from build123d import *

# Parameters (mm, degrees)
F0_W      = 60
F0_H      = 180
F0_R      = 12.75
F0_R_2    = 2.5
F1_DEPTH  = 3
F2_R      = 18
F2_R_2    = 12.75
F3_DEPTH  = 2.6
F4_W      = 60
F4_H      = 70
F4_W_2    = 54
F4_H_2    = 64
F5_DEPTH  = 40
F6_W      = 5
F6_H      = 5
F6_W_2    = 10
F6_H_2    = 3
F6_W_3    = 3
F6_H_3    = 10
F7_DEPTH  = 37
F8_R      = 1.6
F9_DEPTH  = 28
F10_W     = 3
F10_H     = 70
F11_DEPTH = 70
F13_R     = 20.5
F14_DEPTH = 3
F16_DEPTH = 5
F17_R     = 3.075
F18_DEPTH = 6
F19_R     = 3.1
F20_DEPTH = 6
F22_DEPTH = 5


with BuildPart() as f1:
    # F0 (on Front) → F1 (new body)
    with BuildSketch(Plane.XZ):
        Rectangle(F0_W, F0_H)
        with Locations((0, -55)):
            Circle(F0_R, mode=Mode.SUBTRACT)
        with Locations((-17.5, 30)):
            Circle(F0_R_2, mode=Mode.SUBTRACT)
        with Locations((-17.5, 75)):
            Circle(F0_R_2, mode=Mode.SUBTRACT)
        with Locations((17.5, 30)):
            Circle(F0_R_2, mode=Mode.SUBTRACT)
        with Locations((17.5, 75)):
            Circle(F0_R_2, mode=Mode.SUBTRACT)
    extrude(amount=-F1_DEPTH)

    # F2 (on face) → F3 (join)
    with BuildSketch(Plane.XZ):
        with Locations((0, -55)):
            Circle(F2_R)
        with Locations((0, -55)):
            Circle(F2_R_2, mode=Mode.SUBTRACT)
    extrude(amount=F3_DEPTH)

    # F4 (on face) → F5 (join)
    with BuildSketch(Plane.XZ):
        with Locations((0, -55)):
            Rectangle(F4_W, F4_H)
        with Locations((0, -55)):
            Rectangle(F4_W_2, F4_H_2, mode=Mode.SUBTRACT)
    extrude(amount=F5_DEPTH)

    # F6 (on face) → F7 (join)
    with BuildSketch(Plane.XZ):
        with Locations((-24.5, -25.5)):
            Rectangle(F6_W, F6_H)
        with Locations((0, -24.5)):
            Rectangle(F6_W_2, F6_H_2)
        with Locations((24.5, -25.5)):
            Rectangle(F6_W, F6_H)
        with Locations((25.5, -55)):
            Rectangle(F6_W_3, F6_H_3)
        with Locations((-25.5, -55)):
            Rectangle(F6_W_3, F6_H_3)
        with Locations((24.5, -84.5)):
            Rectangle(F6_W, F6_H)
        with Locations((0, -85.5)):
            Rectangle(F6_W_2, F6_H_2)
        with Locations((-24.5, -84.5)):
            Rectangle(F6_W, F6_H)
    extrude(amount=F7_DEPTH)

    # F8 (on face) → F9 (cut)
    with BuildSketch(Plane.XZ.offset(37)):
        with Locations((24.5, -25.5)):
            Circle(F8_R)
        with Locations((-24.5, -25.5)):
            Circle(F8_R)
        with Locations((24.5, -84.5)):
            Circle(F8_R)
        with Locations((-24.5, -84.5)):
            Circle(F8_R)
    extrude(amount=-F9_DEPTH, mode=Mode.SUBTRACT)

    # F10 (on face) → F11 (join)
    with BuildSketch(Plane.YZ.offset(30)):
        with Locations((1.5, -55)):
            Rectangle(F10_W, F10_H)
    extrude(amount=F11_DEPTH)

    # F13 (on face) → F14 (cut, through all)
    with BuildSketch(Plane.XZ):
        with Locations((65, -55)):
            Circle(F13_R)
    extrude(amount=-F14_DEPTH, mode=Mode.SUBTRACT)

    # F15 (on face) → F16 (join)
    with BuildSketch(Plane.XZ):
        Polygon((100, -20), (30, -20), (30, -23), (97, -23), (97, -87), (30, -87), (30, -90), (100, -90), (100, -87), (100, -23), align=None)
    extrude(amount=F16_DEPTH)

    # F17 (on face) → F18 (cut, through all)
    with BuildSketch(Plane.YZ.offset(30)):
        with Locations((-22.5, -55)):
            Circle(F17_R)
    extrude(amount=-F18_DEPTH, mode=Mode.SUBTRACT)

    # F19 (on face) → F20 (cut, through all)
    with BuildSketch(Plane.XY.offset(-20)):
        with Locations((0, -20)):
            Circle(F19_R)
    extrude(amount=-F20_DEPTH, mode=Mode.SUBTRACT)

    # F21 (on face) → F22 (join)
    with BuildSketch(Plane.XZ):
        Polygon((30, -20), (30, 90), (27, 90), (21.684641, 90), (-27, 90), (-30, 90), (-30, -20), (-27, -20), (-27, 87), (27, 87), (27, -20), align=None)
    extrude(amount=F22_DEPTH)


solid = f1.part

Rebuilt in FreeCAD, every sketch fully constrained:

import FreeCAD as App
import Part
import Sketcher
from FreeCAD import Vector
Q = App.Units.Quantity

doc = App.newDocument("Part")
body = doc.addObject("PartDesign::Body", "Body")

sketch1 = body.newObject("Sketcher::SketchObject", "Sketch")
sketch1.AttachmentSupport = (doc.getObject("XZ_Plane"), [""])
sketch1.MapMode = "FlatFace"
sketch1.addGeometry([
    Part.LineSegment(Vector(-30, 90, 0), Vector(-30, -90, 0)),
    Part.LineSegment(Vector(-30, -90, 0), Vector(30, -90, 0)),
    Part.LineSegment(Vector(30, -90, 0), Vector(30, 90, 0)),
    Part.LineSegment(Vector(30, 90, 0), Vector(-30, 90, 0)),
    Part.Circle(Vector(0, -55, 0), Vector(0, 0, 1), 12.8),
    Part.Circle(Vector(-17.5, 30, 0), Vector(0, 0, 1), 2.5),
    Part.Circle(Vector(-17.5, 75, 0), Vector(0, 0, 1), 2.5),
    Part.Circle(Vector(17.5, 30, 0), Vector(0, 0, 1), 2.5),
    Part.Circle(Vector(17.5, 75, 0), Vector(0, 0, 1), 2.5),
], False)
sketch1.addConstraint([
    Sketcher.Constraint("Coincident", 0, 2, 1, 1),
    Sketcher.Constraint("Coincident", 1, 2, 2, 1),
    Sketcher.Constraint("Coincident", 2, 2, 3, 1),
    Sketcher.Constraint("Coincident", 3, 2, 0, 1),
    Sketcher.Constraint("Vertical", 0),
    Sketcher.Constraint("Horizontal", 1),
    Sketcher.Constraint("Vertical", 2),
    Sketcher.Constraint("Horizontal", 3),
    Sketcher.Constraint("Equal", 5, 6),
    Sketcher.Constraint("Equal", 6, 7),
    Sketcher.Constraint("Equal", 7, 8),
    Sketcher.Constraint("Symmetric", 0, 2, 2, 2, -1, 1),
    Sketcher.Constraint("Symmetric", 5, 3, 7, 3, -2),
    Sketcher.Constraint("Symmetric", 6, 3, 8, 3, -2),
    Sketcher.Constraint("PointOnObject", 4, 3, -2),
    Sketcher.Constraint("Vertical", 5, 3, 6, 3),
    Sketcher.Constraint("Diameter", 5, Q("5 mm")),
    Sketcher.Constraint("Diameter", 4, Q("25.5 mm")),
    Sketcher.Constraint("DistanceX", 1, 1, 1, 2, Q("60 mm")),
    Sketcher.Constraint("DistanceY", 0, 2, 0, 1, Q("180 mm")),
    Sketcher.Constraint("DistanceY", 4, 3, -1, 1, Q("55 mm")),
    Sketcher.Constraint("DistanceY", -1, 1, 5, 3, Q("30 mm")),
    Sketcher.Constraint("DistanceY", -1, 1, 6, 3, Q("75 mm")),
    Sketcher.Constraint("DistanceX", 5, 3, 7, 3, Q("35 mm")),
])
pad1 = body.newObject("PartDesign::Pad", "Pad")
pad1.Profile = sketch1
pad1.Length = 3
pad1.Reversed = True

sketch2 = body.newObject("Sketcher::SketchObject", "Sketch001")
sketch2.AttachmentSupport = (doc.getObject("XZ_Plane"), [""])
sketch2.MapMode = "FlatFace"
sketch2.addGeometry([
    Part.Circle(Vector(0, -55, 0), Vector(0, 0, 1), 18),
    Part.Circle(Vector(0, -55, 0), Vector(0, 0, 1), 13),
], False)
sketch2.addConstraint([
    Sketcher.Constraint("Coincident", 1, 3, 0, 3),
    Sketcher.Constraint("PointOnObject", 0, 3, -2),
    Sketcher.Constraint("Diameter", 0, Q("36 mm")),
    Sketcher.Constraint("Diameter", 1, Q("25.5 mm")),
    Sketcher.Constraint("DistanceY", 0, 3, -1, 1, Q("55 mm")),
])
pad2 = body.newObject("PartDesign::Pad", "Pad001")
pad2.Profile = sketch2
pad2.Length = 2.6

sketch3 = body.newObject("Sketcher::SketchObject", "Sketch002")
sketch3.AttachmentSupport = (doc.getObject("XZ_Plane"), [""])
sketch3.MapMode = "FlatFace"
sketch3.addGeometry([
    Part.LineSegment(Vector(-30, -20, 0), Vector(-30, -90, 0)),
    Part.LineSegment(Vector(-30, -90, 0), Vector(30, -90, 0)),
    Part.LineSegment(Vector(30, -90, 0), Vector(30, -20, 0)),
    Part.LineSegment(Vector(30, -20, 0), Vector(-30, -20, 0)),
    Part.LineSegment(Vector(27, -87, 0), Vector(-27, -87, 0)),
    Part.LineSegment(Vector(-27, -87, 0), Vector(-27, -23, 0)),
    Part.LineSegment(Vector(-27, -23, 0), Vector(27, -23, 0)),
    Part.LineSegment(Vector(27, -23, 0), Vector(27, -87, 0)),
], False)
sketch3.addConstraint([
    Sketcher.Constraint("Coincident", 0, 2, 1, 1),
    Sketcher.Constraint("Coincident", 1, 2, 2, 1),
    Sketcher.Constraint("Coincident", 2, 2, 3, 1),
    Sketcher.Constraint("Coincident", 3, 2, 0, 1),
    Sketcher.Constraint("Coincident", 4, 2, 5, 1),
    Sketcher.Constraint("Coincident", 5, 2, 6, 1),
    Sketcher.Constraint("Coincident", 6, 2, 7, 1),
    Sketcher.Constraint("Coincident", 7, 2, 4, 1),
    Sketcher.Constraint("Vertical", 0),
    Sketcher.Constraint("Horizontal", 1),
    Sketcher.Constraint("Vertical", 2),
    Sketcher.Constraint("Horizontal", 3),
    Sketcher.Constraint("Horizontal", 4),
    Sketcher.Constraint("Vertical", 5),
    Sketcher.Constraint("Horizontal", 6),
    Sketcher.Constraint("Vertical", 7),
    Sketcher.Constraint("DistanceX", 1, 1, 1, 2, Q("60 mm")),
    Sketcher.Constraint("DistanceX", 4, 2, 4, 1, Q("54 mm")),
    Sketcher.Constraint("DistanceY", 0, 2, 0, 1, Q("70 mm")),
    Sketcher.Constraint("DistanceY", 5, 1, 5, 2, Q("64 mm")),
    Sketcher.Constraint("DistanceX", 0, 2, -1, 1, Q("30 mm")),
    Sketcher.Constraint("DistanceY", 0, 2, -1, 1, Q("90 mm")),
    Sketcher.Constraint("DistanceX", 4, 2, -1, 1, Q("27 mm")),
    Sketcher.Constraint("DistanceY", 4, 2, -1, 1, Q("87 mm")),
])
pad3 = body.newObject("PartDesign::Pad", "Pad002")
pad3.Profile = sketch3
pad3.Length = 40

sketch4 = body.newObject("Sketcher::SketchObject", "Sketch003")
sketch4.AttachmentSupport = (doc.getObject("XZ_Plane"), [""])
sketch4.MapMode = "FlatFace"
sketch4.addGeometry([
    Part.LineSegment(Vector(-27, -23, 0), Vector(-27, -28, 0)),
    Part.LineSegment(Vector(-27, -28, 0), Vector(-22, -28, 0)),
    Part.LineSegment(Vector(-22, -28, 0), Vector(-22, -23, 0)),
    Part.LineSegment(Vector(-22, -23, 0), Vector(-27, -23, 0)),
    Part.LineSegment(Vector(-5, -23, 0), Vector(-5, -26, 0)),
    Part.LineSegment(Vector(-5, -26, 0), Vector(5, -26, 0)),
    Part.LineSegment(Vector(5, -26, 0), Vector(5, -23, 0)),
    Part.LineSegment(Vector(5, -23, 0), Vector(-5, -23, 0)),
    Part.LineSegment(Vector(22, -23, 0), Vector(22, -28, 0)),
    Part.LineSegment(Vector(22, -28, 0), Vector(27, -28, 0)),
    Part.LineSegment(Vector(27, -28, 0), Vector(27, -23, 0)),
    Part.LineSegment(Vector(27, -23, 0), Vector(22, -23, 0)),
    Part.LineSegment(Vector(24, -50, 0), Vector(24, -60, 0)),
    Part.LineSegment(Vector(24, -60, 0), Vector(27, -60, 0)),
    Part.LineSegment(Vector(27, -60, 0), Vector(27, -50, 0)),
    Part.LineSegment(Vector(27, -50, 0), Vector(24, -50, 0)),
    Part.LineSegment(Vector(-27, -50, 0), Vector(-27, -60, 0)),
    Part.LineSegment(Vector(-27, -60, 0), Vector(-24, -60, 0)),
    Part.LineSegment(Vector(-24, -60, 0), Vector(-24, -50, 0)),
    Part.LineSegment(Vector(-24, -50, 0), Vector(-27, -50, 0)),
    Part.LineSegment(Vector(22, -82, 0), Vector(22, -87, 0)),
    Part.LineSegment(Vector(22, -87, 0), Vector(27, -87, 0)),
    Part.LineSegment(Vector(27, -87, 0), Vector(27, -82, 0)),
    Part.LineSegment(Vector(27, -82, 0), Vector(22, -82, 0)),
    Part.LineSegment(Vector(-5, -84, 0), Vector(-5, -87, 0)),
    Part.LineSegment(Vector(-5, -87, 0), Vector(5, -87, 0)),
    Part.LineSegment(Vector(5, -87, 0), Vector(5, -84, 0)),
    Part.LineSegment(Vector(5, -84, 0), Vector(-5, -84, 0)),
    Part.LineSegment(Vector(-27, -82, 0), Vector(-27, -87, 0)),
    Part.LineSegment(Vector(-27, -87, 0), Vector(-22, -87, 0)),
    Part.LineSegment(Vector(-22, -87, 0), Vector(-22, -82, 0)),
    Part.LineSegment(Vector(-22, -82, 0), Vector(-27, -82, 0)),
], False)
sketch4.addConstraint([
    Sketcher.Constraint("Coincident", 0, 2, 1, 1),
    Sketcher.Constraint("Coincident", 1, 2, 2, 1),
    Sketcher.Constraint("Coincident", 2, 2, 3, 1),
    Sketcher.Constraint("Coincident", 3, 2, 0, 1),
    Sketcher.Constraint("Coincident", 4, 2, 5, 1),
    Sketcher.Constraint("Coincident", 5, 2, 6, 1),
    Sketcher.Constraint("Coincident", 6, 2, 7, 1),
    Sketcher.Constraint("Coincident", 7, 2, 4, 1),
    Sketcher.Constraint("Coincident", 8, 2, 9, 1),
    Sketcher.Constraint("Coincident", 9, 2, 10, 1),
    Sketcher.Constraint("Coincident", 10, 2, 11, 1),
    Sketcher.Constraint("Coincident", 11, 2, 8, 1),
    Sketcher.Constraint("Coincident", 12, 2, 13, 1),
    Sketcher.Constraint("Coincident", 13, 2, 14, 1),
    Sketcher.Constraint("Coincident", 14, 2, 15, 1),
    Sketcher.Constraint("Coincident", 15, 2, 12, 1),
    Sketcher.Constraint("Coincident", 16, 2, 17, 1),
    Sketcher.Constraint("Coincident", 17, 2, 18, 1),
    Sketcher.Constraint("Coincident", 18, 2, 19, 1),
    Sketcher.Constraint("Coincident", 19, 2, 16, 1),
    Sketcher.Constraint("Coincident", 20, 2, 21, 1),
    Sketcher.Constraint("Coincident", 21, 2, 22, 1),
    Sketcher.Constraint("Coincident", 22, 2, 23, 1),
    Sketcher.Constraint("Coincident", 23, 2, 20, 1),
    Sketcher.Constraint("Coincident", 24, 2, 25, 1),
    Sketcher.Constraint("Coincident", 25, 2, 26, 1),
    Sketcher.Constraint("Coincident", 26, 2, 27, 1),
    Sketcher.Constraint("Coincident", 27, 2, 24, 1),
    Sketcher.Constraint("Coincident", 28, 2, 29, 1),
    Sketcher.Constraint("Coincident", 29, 2, 30, 1),
    Sketcher.Constraint("Coincident", 30, 2, 31, 1),
    Sketcher.Constraint("Coincident", 31, 2, 28, 1),
    Sketcher.Constraint("Vertical", 0),
    Sketcher.Constraint("Horizontal", 1),
    Sketcher.Constraint("Vertical", 2),
    Sketcher.Constraint("Horizontal", 3),
    Sketcher.Constraint("Vertical", 4),
    Sketcher.Constraint("Horizontal", 5),
    Sketcher.Constraint("Vertical", 6),
    Sketcher.Constraint("Horizontal", 7),
    Sketcher.Constraint("Vertical", 8),
    Sketcher.Constraint("Horizontal", 9),
    Sketcher.Constraint("Vertical", 10),
    Sketcher.Constraint("Horizontal", 11),
    Sketcher.Constraint("Vertical", 12),
    Sketcher.Constraint("Horizontal", 13),
    Sketcher.Constraint("Vertical", 14),
    Sketcher.Constraint("Horizontal", 15),
    Sketcher.Constraint("Vertical", 16),
    Sketcher.Constraint("Horizontal", 17),
    Sketcher.Constraint("Vertical", 18),
    Sketcher.Constraint("Horizontal", 19),
    Sketcher.Constraint("Vertical", 20),
    Sketcher.Constraint("Horizontal", 21),
    Sketcher.Constraint("Vertical", 22),
    Sketcher.Constraint("Horizontal", 23),
    Sketcher.Constraint("Vertical", 24),
    Sketcher.Constraint("Horizontal", 25),
    Sketcher.Constraint("Vertical", 26),
    Sketcher.Constraint("Horizontal", 27),
    Sketcher.Constraint("Vertical", 28),
    Sketcher.Constraint("Horizontal", 29),
    Sketcher.Constraint("Vertical", 30),
    Sketcher.Constraint("Horizontal", 31),
    Sketcher.Constraint("Symmetric", 1, 2, 8, 2, -2),
    Sketcher.Constraint("Symmetric", 3, 2, 10, 2, -2),
    Sketcher.Constraint("Symmetric", 13, 2, 16, 2, -2),
    Sketcher.Constraint("Symmetric", 15, 2, 18, 2, -2),
    Sketcher.Constraint("Symmetric", 21, 2, 28, 2, -2),
    Sketcher.Constraint("Symmetric", 23, 2, 30, 2, -2),
    Sketcher.Constraint("Horizontal", 3, 2, 6, 2),
    Sketcher.Constraint("Horizontal", 21, 2, 24, 2),
    Sketcher.Constraint("Vertical", 10, 2, 13, 2),
    Sketcher.Constraint("Vertical", 11, 2, 20, 2),
    Sketcher.Constraint("Vertical", 14, 2, 21, 2),
    Sketcher.Constraint("Vertical", 7, 2, 24, 2),
    Sketcher.Constraint("Vertical", 6, 2, 25, 2),
    Sketcher.Constraint("Equal", 31, 0),
    Sketcher.Constraint("Equal", 19, 4),
    Sketcher.Constraint("Equal", 27, 12),
    Sketcher.Constraint("Equal", 10, 20),
    Sketcher.Constraint("Equal", 6, 24),
    Sketcher.Constraint("DistanceX", 1, 1, 1, 2, Q("5 mm")),
    Sketcher.Constraint("DistanceX", 5, 1, 5, 2, Q("10 mm")),
    Sketcher.Constraint("DistanceX", 13, 1, 13, 2, Q("3 mm")),
    Sketcher.Constraint("DistanceX", 0, 2, -1, 1, Q("27 mm")),
    Sketcher.Constraint("DistanceY", 0, 2, -1, 1, Q("28 mm")),
    Sketcher.Constraint("DistanceX", 4, 2, -1, 1, Q("5 mm")),
    Sketcher.Constraint("DistanceY", 12, 2, -1, 1, Q("60 mm")),
    Sketcher.Constraint("DistanceY", 20, 2, -1, 1, Q("87 mm")),
])
pad4 = body.newObject("PartDesign::Pad", "Pad003")
pad4.Profile = sketch4
pad4.Length = 37

sketch5 = body.newObject("Sketcher::SketchObject", "Sketch004")
sketch5.AttachmentSupport = (doc.getObject("XZ_Plane"), [""])
sketch5.MapMode = "FlatFace"
sketch5.AttachmentOffset = App.Placement(Vector(0, 0, 37), App.Rotation())
sketch5.addGeometry([
    Part.Circle(Vector(24.5, -25.5, 0), Vector(0, 0, 1), 1.6),
    Part.Circle(Vector(-24.5, -25.5, 0), Vector(0, 0, 1), 1.6),
    Part.Circle(Vector(24.5, -84.5, 0), Vector(0, 0, 1), 1.6),
    Part.Circle(Vector(-24.5, -84.5, 0), Vector(0, 0, 1), 1.6),
], False)
sketch5.addConstraint([
    Sketcher.Constraint("Equal", 0, 1),
    Sketcher.Constraint("Equal", 1, 2),
    Sketcher.Constraint("Equal", 2, 3),
    Sketcher.Constraint("Symmetric", 0, 3, 1, 3, -2),
    Sketcher.Constraint("Symmetric", 2, 3, 3, 3, -2),
    Sketcher.Constraint("Vertical", 0, 3, 2, 3),
    Sketcher.Constraint("Diameter", 0, Q("3.2 mm")),
    Sketcher.Constraint("DistanceX", 1, 3, 0, 3, Q("49 mm")),
    Sketcher.Constraint("DistanceY", 2, 3, 0, 3, Q("59 mm")),
    Sketcher.Constraint("DistanceY", 0, 3, -1, 1, Q("25.5 mm")),
])
pocket1 = body.newObject("PartDesign::Pocket", "Pocket")
pocket1.Profile = sketch5
pocket1.Length = 28

sketch6 = body.newObject("Sketcher::SketchObject", "Sketch005")
sketch6.AttachmentSupport = (doc.getObject("YZ_Plane"), [""])
sketch6.MapMode = "FlatFace"
sketch6.AttachmentOffset = App.Placement(Vector(0, 0, 30), App.Rotation())
sketch6.addGeometry([
    Part.LineSegment(Vector(0, -20, 0), Vector(0, -90, 0)),
    Part.LineSegment(Vector(0, -90, 0), Vector(3, -90, 0)),
    Part.LineSegment(Vector(3, -90, 0), Vector(3, -20, 0)),
    Part.LineSegment(Vector(3, -20, 0), Vector(0, -20, 0)),
], False)
sketch6.addConstraint([
    Sketcher.Constraint("Coincident", 0, 2, 1, 1),
    Sketcher.Constraint("Coincident", 1, 2, 2, 1),
    Sketcher.Constraint("Coincident", 2, 2, 3, 1),
    Sketcher.Constraint("Coincident", 3, 2, 0, 1),
    Sketcher.Constraint("Vertical", 0),
    Sketcher.Constraint("Horizontal", 1),
    Sketcher.Constraint("Vertical", 2),
    Sketcher.Constraint("Horizontal", 3),
    Sketcher.Constraint("PointOnObject", 0, 2, -2),
    Sketcher.Constraint("DistanceX", 1, 1, 1, 2, Q("3 mm")),
    Sketcher.Constraint("DistanceY", 0, 2, 0, 1, Q("70 mm")),
    Sketcher.Constraint("DistanceY", 0, 2, -1, 1, Q("90 mm")),
])
pad5 = body.newObject("PartDesign::Pad", "Pad004")
pad5.Profile = sketch6
pad5.Length = 70

sketch7 = body.newObject("Sketcher::SketchObject", "Sketch006")
sketch7.AttachmentSupport = (doc.getObject("XZ_Plane"), [""])
sketch7.MapMode = "FlatFace"
sketch7.addGeometry(Part.Circle(Vector(65, -55, 0), Vector(0, 0, 1), 20), False)
sketch7.addConstraint([
    Sketcher.Constraint("Diameter", 0, Q("41 mm")),
    Sketcher.Constraint("DistanceX", -1, 1, 0, 3, Q("65 mm")),
    Sketcher.Constraint("DistanceY", 0, 3, -1, 1, Q("55 mm")),
])
pocket2 = body.newObject("PartDesign::Pocket", "Pocket001")
pocket2.Profile = sketch7
pocket2.Type = "ThroughAll"

sketch8 = body.newObject("Sketcher::SketchObject", "Sketch007")
sketch8.AttachmentSupport = (doc.getObject("XZ_Plane"), [""])
sketch8.MapMode = "FlatFace"
sketch8.addGeometry([
    Part.LineSegment(Vector(100, -20, 0), Vector(30, -20, 0)),
    Part.LineSegment(Vector(30, -20, 0), Vector(30, -23, 0)),
    Part.LineSegment(Vector(30, -23, 0), Vector(97, -23, 0)),
    Part.LineSegment(Vector(97, -23, 0), Vector(97, -87, 0)),
    Part.LineSegment(Vector(97, -87, 0), Vector(30, -87, 0)),
    Part.LineSegment(Vector(30, -87, 0), Vector(30, -90, 0)),
    Part.LineSegment(Vector(30, -90, 0), Vector(100, -90, 0)),
    Part.LineSegment(Vector(100, -90, 0), Vector(100, -20, 0)),
], False)
sketch8.addConstraint([
    Sketcher.Constraint("Coincident", 0, 2, 1, 1),
    Sketcher.Constraint("Coincident", 1, 2, 2, 1),
    Sketcher.Constraint("Coincident", 2, 2, 3, 1),
    Sketcher.Constraint("Coincident", 3, 2, 4, 1),
    Sketcher.Constraint("Coincident", 4, 2, 5, 1),
    Sketcher.Constraint("Coincident", 5, 2, 6, 1),
    Sketcher.Constraint("Coincident", 6, 2, 7, 1),
    Sketcher.Constraint("Coincident", 7, 2, 0, 1),
    Sketcher.Constraint("Horizontal", 0),
    Sketcher.Constraint("Vertical", 1),
    Sketcher.Constraint("Horizontal", 2),
    Sketcher.Constraint("Vertical", 3),
    Sketcher.Constraint("Horizontal", 4),
    Sketcher.Constraint("Vertical", 5),
    Sketcher.Constraint("Horizontal", 6),
    Sketcher.Constraint("Vertical", 7),
    Sketcher.Constraint("Vertical", 1, 2, 4, 2),
    Sketcher.Constraint("Equal", 1, 5),
    Sketcher.Constraint("Equal", 6, 7),
    Sketcher.Constraint("DistanceX", 0, 2, 0, 1, Q("70 mm")),
    Sketcher.Constraint("DistanceX", 2, 1, 2, 2, Q("67 mm")),
    Sketcher.Constraint("DistanceY", 1, 2, 1, 1, Q("3 mm")),
    Sketcher.Constraint("DistanceX", -1, 1, 0, 2, Q("30 mm")),
    Sketcher.Constraint("DistanceY", 0, 2, -1, 1, Q("20 mm")),
])
pad6 = body.newObject("PartDesign::Pad", "Pad005")
pad6.Profile = sketch8
pad6.Length = 5

sketch9 = body.newObject("Sketcher::SketchObject", "Sketch008")
sketch9.AttachmentSupport = (doc.getObject("YZ_Plane"), [""])
sketch9.MapMode = "FlatFace"
sketch9.AttachmentOffset = App.Placement(Vector(0, 0, 30), App.Rotation())
sketch9.addGeometry(Part.Circle(Vector(-22.5, -55, 0), Vector(0, 0, 1), 3.1), False)
sketch9.addConstraint([
    Sketcher.Constraint("Diameter", 0, Q("6.15 mm")),
    Sketcher.Constraint("DistanceY", 0, 3, -1, 1, Q("55 mm")),
    Sketcher.Constraint("DistanceX", 0, 3, -1, 1, Q("22.5 mm")),
])
pocket3 = body.newObject("PartDesign::Pocket", "Pocket002")
pocket3.Profile = sketch9
pocket3.Length = 6

sketch10 = body.newObject("Sketcher::SketchObject", "Sketch009")
sketch10.AttachmentSupport = (doc.getObject("XY_Plane"), [""])
sketch10.MapMode = "FlatFace"
sketch10.AttachmentOffset = App.Placement(Vector(0, 0, -20), App.Rotation())
sketch10.addGeometry(Part.Circle(Vector(0, -20, 0), Vector(0, 0, 1), 3.1), False)
sketch10.addConstraint([
    Sketcher.Constraint("PointOnObject", 0, 3, -2),
    Sketcher.Constraint("Diameter", 0, Q("6.2 mm")),
    Sketcher.Constraint("DistanceY", 0, 3, -1, 1, Q("20 mm")),
])
pocket4 = body.newObject("PartDesign::Pocket", "Pocket003")
pocket4.Profile = sketch10
pocket4.Length = 6

sketch11 = body.newObject("Sketcher::SketchObject", "Sketch010")
sketch11.AttachmentSupport = (doc.getObject("XZ_Plane"), [""])
sketch11.MapMode = "FlatFace"
sketch11.addGeometry([
    Part.LineSegment(Vector(30, -20, 0), Vector(30, 90, 0)),
    Part.LineSegment(Vector(30, 90, 0), Vector(-30, 90, 0)),
    Part.LineSegment(Vector(-30, 90, 0), Vector(-30, -20, 0)),
    Part.LineSegment(Vector(-30, -20, 0), Vector(-27, -20, 0)),
    Part.LineSegment(Vector(-27, -20, 0), Vector(-27, 87, 0)),
    Part.LineSegment(Vector(-27, 87, 0), Vector(27, 87, 0)),
    Part.LineSegment(Vector(27, 87, 0), Vector(27, -20, 0)),
    Part.LineSegment(Vector(27, -20, 0), Vector(30, -20, 0)),
], False)
sketch11.addConstraint([
    Sketcher.Constraint("Coincident", 0, 2, 1, 1),
    Sketcher.Constraint("Coincident", 1, 2, 2, 1),
    Sketcher.Constraint("Coincident", 2, 2, 3, 1),
    Sketcher.Constraint("Coincident", 3, 2, 4, 1),
    Sketcher.Constraint("Coincident", 4, 2, 5, 1),
    Sketcher.Constraint("Coincident", 5, 2, 6, 1),
    Sketcher.Constraint("Coincident", 6, 2, 7, 1),
    Sketcher.Constraint("Coincident", 7, 2, 0, 1),
    Sketcher.Constraint("Vertical", 0),
    Sketcher.Constraint("Horizontal", 1),
    Sketcher.Constraint("Vertical", 2),
    Sketcher.Constraint("Horizontal", 3),
    Sketcher.Constraint("Vertical", 4),
    Sketcher.Constraint("Horizontal", 5),
    Sketcher.Constraint("Vertical", 6),
    Sketcher.Constraint("Horizontal", 7),
    Sketcher.Constraint("Symmetric", 3, 2, 6, 2, -2),
    Sketcher.Constraint("Equal", 3, 7),
    Sketcher.Constraint("DistanceX", 1, 2, 1, 1, Q("60 mm")),
    Sketcher.Constraint("DistanceX", 3, 1, 3, 2, Q("3 mm")),
    Sketcher.Constraint("DistanceY", 0, 1, 0, 2, Q("110 mm")),
    Sketcher.Constraint("DistanceY", 4, 1, 4, 2, Q("107 mm")),
    Sketcher.Constraint("DistanceY", -1, 1, 0, 2, Q("90 mm")),
])
pad7 = body.newObject("PartDesign::Pad", "Pad006")
pad7.Profile = sketch11
pad7.Length = 5

doc.recompute()
